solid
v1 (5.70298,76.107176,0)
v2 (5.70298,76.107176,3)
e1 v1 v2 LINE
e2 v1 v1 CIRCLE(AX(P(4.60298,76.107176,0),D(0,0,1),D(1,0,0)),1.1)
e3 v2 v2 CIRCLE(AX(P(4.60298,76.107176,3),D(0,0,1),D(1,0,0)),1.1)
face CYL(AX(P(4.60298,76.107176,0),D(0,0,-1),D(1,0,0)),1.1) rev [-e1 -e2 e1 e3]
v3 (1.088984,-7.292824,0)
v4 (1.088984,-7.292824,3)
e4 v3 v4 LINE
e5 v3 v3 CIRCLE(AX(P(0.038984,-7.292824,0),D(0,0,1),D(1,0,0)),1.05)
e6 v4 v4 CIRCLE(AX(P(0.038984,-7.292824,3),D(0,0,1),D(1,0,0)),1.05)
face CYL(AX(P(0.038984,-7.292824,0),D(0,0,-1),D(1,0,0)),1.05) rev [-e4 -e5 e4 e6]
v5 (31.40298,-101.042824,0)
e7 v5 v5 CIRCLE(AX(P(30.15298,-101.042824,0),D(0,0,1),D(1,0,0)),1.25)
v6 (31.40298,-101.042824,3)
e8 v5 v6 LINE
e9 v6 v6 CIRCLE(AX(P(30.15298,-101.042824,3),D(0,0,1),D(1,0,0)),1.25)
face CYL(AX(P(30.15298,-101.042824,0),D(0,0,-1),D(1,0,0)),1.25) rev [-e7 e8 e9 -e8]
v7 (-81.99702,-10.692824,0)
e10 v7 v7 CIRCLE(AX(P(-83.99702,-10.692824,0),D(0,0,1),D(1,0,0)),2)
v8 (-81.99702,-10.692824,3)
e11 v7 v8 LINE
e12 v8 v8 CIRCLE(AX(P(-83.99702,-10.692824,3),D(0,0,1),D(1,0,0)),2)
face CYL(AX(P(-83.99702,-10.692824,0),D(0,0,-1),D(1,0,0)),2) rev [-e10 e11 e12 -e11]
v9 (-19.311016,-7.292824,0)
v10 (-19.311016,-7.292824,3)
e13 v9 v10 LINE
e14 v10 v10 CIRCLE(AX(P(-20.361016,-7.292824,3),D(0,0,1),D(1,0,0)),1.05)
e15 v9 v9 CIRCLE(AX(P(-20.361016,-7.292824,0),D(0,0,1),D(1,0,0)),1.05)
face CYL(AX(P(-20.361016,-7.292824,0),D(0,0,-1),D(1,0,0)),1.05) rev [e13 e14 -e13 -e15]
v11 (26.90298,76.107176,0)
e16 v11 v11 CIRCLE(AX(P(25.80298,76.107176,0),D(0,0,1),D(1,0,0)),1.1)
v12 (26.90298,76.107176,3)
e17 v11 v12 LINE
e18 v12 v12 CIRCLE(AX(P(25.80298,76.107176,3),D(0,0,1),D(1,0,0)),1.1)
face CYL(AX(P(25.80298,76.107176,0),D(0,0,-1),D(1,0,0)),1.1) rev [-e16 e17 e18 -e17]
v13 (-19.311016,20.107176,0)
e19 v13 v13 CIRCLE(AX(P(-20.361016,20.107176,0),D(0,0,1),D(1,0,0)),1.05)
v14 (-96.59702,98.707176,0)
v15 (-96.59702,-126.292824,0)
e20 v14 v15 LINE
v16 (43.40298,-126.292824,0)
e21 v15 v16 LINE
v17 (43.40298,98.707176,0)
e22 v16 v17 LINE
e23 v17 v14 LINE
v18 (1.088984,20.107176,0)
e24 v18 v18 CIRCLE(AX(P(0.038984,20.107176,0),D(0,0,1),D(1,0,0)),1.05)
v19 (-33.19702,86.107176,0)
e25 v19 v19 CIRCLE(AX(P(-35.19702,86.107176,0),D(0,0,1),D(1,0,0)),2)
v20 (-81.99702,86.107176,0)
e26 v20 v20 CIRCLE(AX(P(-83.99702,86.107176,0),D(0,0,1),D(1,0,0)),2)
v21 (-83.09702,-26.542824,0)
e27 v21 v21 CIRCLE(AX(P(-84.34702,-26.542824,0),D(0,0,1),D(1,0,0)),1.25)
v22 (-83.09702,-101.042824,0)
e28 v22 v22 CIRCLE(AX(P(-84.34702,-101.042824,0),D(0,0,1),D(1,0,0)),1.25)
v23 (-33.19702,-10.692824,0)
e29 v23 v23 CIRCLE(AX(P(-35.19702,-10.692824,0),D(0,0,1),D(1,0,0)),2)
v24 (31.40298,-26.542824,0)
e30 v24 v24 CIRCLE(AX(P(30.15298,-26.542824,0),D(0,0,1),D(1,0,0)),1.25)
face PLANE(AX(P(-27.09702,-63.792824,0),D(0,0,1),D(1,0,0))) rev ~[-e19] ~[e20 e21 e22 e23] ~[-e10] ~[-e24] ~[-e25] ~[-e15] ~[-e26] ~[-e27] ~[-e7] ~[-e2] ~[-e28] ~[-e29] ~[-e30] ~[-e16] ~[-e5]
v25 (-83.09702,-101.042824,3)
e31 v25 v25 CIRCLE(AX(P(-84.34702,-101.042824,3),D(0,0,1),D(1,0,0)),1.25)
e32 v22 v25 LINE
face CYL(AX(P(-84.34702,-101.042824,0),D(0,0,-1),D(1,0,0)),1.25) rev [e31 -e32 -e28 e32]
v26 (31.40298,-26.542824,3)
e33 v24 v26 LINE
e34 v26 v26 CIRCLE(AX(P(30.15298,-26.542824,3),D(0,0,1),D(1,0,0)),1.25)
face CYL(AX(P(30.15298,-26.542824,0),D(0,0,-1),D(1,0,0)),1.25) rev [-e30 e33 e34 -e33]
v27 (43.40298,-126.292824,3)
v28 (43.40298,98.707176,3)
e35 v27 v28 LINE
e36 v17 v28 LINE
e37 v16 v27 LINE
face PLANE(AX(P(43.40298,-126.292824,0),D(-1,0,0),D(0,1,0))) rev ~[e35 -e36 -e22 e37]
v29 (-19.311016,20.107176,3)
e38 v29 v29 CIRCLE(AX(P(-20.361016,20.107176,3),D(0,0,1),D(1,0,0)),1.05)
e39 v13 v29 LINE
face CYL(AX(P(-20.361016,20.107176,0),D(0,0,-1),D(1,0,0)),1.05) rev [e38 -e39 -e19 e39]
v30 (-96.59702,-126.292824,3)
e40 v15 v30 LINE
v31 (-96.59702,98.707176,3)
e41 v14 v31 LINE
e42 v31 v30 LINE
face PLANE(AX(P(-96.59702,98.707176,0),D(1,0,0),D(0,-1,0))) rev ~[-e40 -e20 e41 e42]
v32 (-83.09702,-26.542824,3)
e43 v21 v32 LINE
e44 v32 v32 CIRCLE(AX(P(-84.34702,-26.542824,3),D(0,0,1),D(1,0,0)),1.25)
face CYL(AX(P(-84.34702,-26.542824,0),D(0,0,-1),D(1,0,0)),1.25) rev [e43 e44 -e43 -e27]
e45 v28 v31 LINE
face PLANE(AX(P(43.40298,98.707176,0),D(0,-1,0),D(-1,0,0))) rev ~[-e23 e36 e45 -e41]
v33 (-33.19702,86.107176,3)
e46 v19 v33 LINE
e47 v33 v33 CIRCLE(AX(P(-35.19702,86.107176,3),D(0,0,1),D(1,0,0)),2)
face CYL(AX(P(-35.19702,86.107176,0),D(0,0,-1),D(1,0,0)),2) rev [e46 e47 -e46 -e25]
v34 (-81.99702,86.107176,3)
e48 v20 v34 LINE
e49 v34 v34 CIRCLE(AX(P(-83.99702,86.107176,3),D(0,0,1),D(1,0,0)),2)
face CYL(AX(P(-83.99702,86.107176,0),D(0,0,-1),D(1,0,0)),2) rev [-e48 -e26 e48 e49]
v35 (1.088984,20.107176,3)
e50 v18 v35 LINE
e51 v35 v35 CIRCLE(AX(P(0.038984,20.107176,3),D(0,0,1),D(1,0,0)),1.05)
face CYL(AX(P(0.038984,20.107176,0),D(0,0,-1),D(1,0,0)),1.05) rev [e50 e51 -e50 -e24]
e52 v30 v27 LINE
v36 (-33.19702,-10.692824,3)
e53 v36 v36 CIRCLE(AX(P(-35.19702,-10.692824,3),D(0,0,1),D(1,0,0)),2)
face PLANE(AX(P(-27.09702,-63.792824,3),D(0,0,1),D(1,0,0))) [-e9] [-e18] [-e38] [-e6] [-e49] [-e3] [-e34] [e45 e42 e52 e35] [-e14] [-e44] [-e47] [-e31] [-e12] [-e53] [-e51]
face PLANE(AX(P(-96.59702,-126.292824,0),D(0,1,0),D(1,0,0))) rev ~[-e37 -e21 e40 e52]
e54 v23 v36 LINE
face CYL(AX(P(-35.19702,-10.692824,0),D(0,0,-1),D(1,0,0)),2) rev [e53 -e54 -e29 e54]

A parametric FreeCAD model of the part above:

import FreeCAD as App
import Part
import Sketcher
from FreeCAD import Vector

doc = App.newDocument("Part")
body = doc.addObject("PartDesign::Body", "Body")

# Sketch on XY plane
sketch1 = doc.addObject("Sketcher::SketchObject", "Sketch")
body.addObject(sketch1)
sketch1.AttachmentSupport = (doc.XY_Plane, [""])
sketch1.MapMode = "FlatFace"
sketch1.addGeometry(Part.LineSegment(Vector(43.40298, -126.292824, 0), Vector(43.40298, 98.707176, 0)), False)
sketch1.addGeometry(Part.LineSegment(Vector(43.40298, 98.707176, 0), Vector(-96.59702, 98.707176, 0)), False)
sketch1.addGeometry(Part.LineSegment(Vector(-96.59702, 98.707176, 0), Vector(-96.59702, -126.292824, 0)), False)
sketch1.addGeometry(Part.LineSegment(Vector(-96.59702, -126.292824, 0), Vector(43.40298, -126.292824, 0)), False)
sketch1.addGeometry(Part.Circle(Vector(-84.34702, -101.042824, 0), Vector(0, 0, 1), 1.25), False)
sketch1.addGeometry(Part.Circle(Vector(-84.34702, -26.542824, 0), Vector(0, 0, 1), 1.25), False)
sketch1.addGeometry(Part.Circle(Vector(-83.99702, -10.692824, 0), Vector(0, 0, 1), 2), False)
sketch1.addGeometry(Part.Circle(Vector(-35.19702, -10.692824, 0), Vector(0, 0, 1), 2), False)
sketch1.addGeometry(Part.Circle(Vector(30.15298, -101.042824, 0), Vector(0, 0, 1), 1.25), False)
sketch1.addGeometry(Part.Circle(Vector(-20.361016, -7.292824, 0), Vector(0, 0, 1), 1.05), False)
sketch1.addGeometry(Part.Circle(Vector(0.038984, -7.292824, 0), Vector(0, 0, 1), 1.05), False)
sketch1.addGeometry(Part.Circle(Vector(30.15298, -26.542824, 0), Vector(0, 0, 1), 1.25), False)
sketch1.addGeometry(Part.Circle(Vector(-83.99702, 86.107176, 0), Vector(0, 0, 1), 2), False)
sketch1.addGeometry(Part.Circle(Vector(-35.19702, 86.107176, 0), Vector(0, 0, 1), 2), False)
sketch1.addGeometry(Part.Circle(Vector(-20.361016, 20.107176, 0), Vector(0, 0, 1), 1.05), False)
sketch1.addGeometry(Part.Circle(Vector(0.038984, 20.107176, 0), Vector(0, 0, 1), 1.05), False)
sketch1.addGeometry(Part.Circle(Vector(4.60298, 76.107176, 0), Vector(0, 0, 1), 1.1), False)
sketch1.addGeometry(Part.Circle(Vector(25.80298, 76.107176, 0), Vector(0, 0, 1), 1.1), False)
sketch1.addConstraint(Sketcher.Constraint("Coincident", 0, 2, 1, 1))
sketch1.addConstraint(Sketcher.Constraint("Coincident", 1, 2, 2, 1))
sketch1.addConstraint(Sketcher.Constraint("Coincident", 2, 2, 3, 1))
sketch1.addConstraint(Sketcher.Constraint("Coincident", 3, 2, 0, 1))
sketch1.addConstraint(Sketcher.Constraint("Vertical", 0))
sketch1.addConstraint(Sketcher.Constraint("Horizontal", 1))
sketch1.addConstraint(Sketcher.Constraint("Vertical", 2))
sketch1.addConstraint(Sketcher.Constraint("Horizontal", 3))
sketch1.addConstraint(Sketcher.Constraint("Equal", 4, 5))
sketch1.addConstraint(Sketcher.Constraint("Equal", 6, 7))
sketch1.addConstraint(Sketcher.Constraint("Equal", 5, 8))
sketch1.addConstraint(Sketcher.Constraint("Equal", 9, 10))
sketch1.addConstraint(Sketcher.Constraint("Equal", 8, 11))
sketch1.addConstraint(Sketcher.Constraint("Equal", 7, 12))
sketch1.addConstraint(Sketcher.Constraint("Equal", 12, 13))
sketch1.addConstraint(Sketcher.Constraint("Equal", 10, 14))
sketch1.addConstraint(Sketcher.Constraint("Equal", 14, 15))
sketch1.addConstraint(Sketcher.Constraint("Equal", 16, 17))
sketch1.addConstraint(Sketcher.Constraint("Horizontal", 6, 3, 7, 3))
sketch1.addConstraint(Sketcher.Constraint("Horizontal", 4, 3, 8, 3))
sketch1.addConstraint(Sketcher.Constraint("Horizontal", 9, 3, 10, 3))
sketch1.addConstraint(Sketcher.Constraint("Horizontal", 5, 3, 11, 3))
sketch1.addConstraint(Sketcher.Constraint("Horizontal", 12, 3, 13, 3))
sketch1.addConstraint(Sketcher.Constraint("Horizontal", 14, 3, 15, 3))
sketch1.addConstraint(Sketcher.Constraint("Horizontal", 16, 3, 17, 3))
sketch1.addConstraint(Sketcher.Constraint("Vertical", 4, 3, 5, 3))
sketch1.addConstraint(Sketcher.Constraint("Vertical", 8, 3, 11, 3))
sketch1.addConstraint(Sketcher.Constraint("Vertical", 6, 3, 12, 3))
sketch1.addConstraint(Sketcher.Constraint("Vertical", 7, 3, 13, 3))
sketch1.addConstraint(Sketcher.Constraint("Vertical", 9, 3, 14, 3))
sketch1.addConstraint(Sketcher.Constraint("Vertical", 10, 3, 15, 3))
sketch1.addConstraint(Sketcher.Constraint("Diameter", 6, 4.0))
sketch1.addConstraint(Sketcher.Constraint("Diameter", 4, 2.5))
sketch1.addConstraint(Sketcher.Constraint("Diameter", 9, 2.1))
sketch1.addConstraint(Sketcher.Constraint("Diameter", 16, 2.2))
sketch1.addConstraint(Sketcher.Constraint("DistanceX", 1, 2, 1, 1, 140.0))
sketch1.addConstraint(Sketcher.Constraint("DistanceY", 0, 1, 0, 2, 225.0))
sketch1.addConstraint(Sketcher.Constraint("DistanceY", 14, 3, 13, 3, 66.0))
sketch1.addConstraint(Sketcher.Constraint("DistanceY", 16, 3, 13, 3, 10.0))
sketch1.addConstraint(Sketcher.Constraint("DistanceX", 13, 3, 17, 3, 61.0))
sketch1.addConstraint(Sketcher.Constraint("DistanceY", 3, 2, 10, 3, 119.0))
sketch1.addConstraint(Sketcher.Constraint("DistanceY", 4, 3, 5, 3, 74.5))
sketch1.addConstraint(Sketcher.Constraint("DistanceX", 6, 3, 7, 3, 48.8))
sketch1.addConstraint(Sketcher.Constraint("DistanceX", 4, 3, 8, 3, 114.5))
sketch1.addConstraint(Sketcher.Constraint("DistanceY", 7, 3, 9, 3, 3.4))
sketch1.addConstraint(Sketcher.Constraint("DistanceX", 9, 3, 10, 3, 20.4))
sketch1.addConstraint(Sketcher.Constraint("DistanceY", 6, 3, 12, 3, 96.8))
sketch1.addConstraint(Sketcher.Constraint("DistanceX", 13, 3, 16, 3, 39.8))
sketch1.addConstraint(Sketcher.Constraint("DistanceX", 17, 3, 0, 2, 17.6))
sketch1.addConstraint(Sketcher.Constraint("DistanceX", 5, 3, 6, 3, 0.35))
sketch1.addConstraint(Sketcher.Constraint("DistanceY", 5, 3, 6, 3, 15.85))
sketch1.addConstraint(Sketcher.Constraint("DistanceX", 4, 3, -1, 1, 84.34702))
sketch1.addConstraint(Sketcher.Constraint("DistanceY", 4, 3, -1, 1, 101.042824))
sketch1.addConstraint(Sketcher.Constraint("DistanceX", 9, 3, -1, 1, 20.361016))
pad1 = doc.addObject("PartDesign::Pad", "Pad")
body.addObject(pad1)
pad1.Profile = sketch1
pad1.Length = 3

doc.recompute()
